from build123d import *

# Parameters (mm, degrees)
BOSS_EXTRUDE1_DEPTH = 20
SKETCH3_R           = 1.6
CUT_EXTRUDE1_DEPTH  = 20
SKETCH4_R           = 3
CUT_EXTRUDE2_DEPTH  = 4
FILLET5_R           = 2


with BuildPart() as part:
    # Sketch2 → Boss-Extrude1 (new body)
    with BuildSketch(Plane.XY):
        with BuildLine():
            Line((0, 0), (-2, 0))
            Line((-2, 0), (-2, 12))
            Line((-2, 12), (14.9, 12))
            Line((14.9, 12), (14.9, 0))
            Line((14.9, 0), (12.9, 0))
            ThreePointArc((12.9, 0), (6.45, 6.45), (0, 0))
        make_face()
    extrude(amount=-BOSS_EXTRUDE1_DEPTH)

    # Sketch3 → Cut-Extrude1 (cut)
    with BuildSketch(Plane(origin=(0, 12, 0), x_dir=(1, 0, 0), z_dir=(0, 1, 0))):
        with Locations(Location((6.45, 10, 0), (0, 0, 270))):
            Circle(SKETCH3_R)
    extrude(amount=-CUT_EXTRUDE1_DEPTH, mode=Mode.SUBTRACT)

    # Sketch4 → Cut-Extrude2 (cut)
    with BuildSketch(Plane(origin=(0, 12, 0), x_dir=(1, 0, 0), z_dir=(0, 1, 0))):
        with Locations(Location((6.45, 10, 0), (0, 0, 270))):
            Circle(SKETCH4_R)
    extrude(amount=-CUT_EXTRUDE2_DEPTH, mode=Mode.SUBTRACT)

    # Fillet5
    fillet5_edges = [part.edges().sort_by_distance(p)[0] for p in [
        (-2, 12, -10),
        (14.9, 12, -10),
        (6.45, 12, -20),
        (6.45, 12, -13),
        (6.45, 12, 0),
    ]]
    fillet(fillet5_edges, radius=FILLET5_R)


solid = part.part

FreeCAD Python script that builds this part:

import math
import FreeCAD as App
import Part
import Sketcher
from FreeCAD import Vector


def edges_at(feature, points):
    """Names of the edges that pass closest to the given points."""
    edges = feature.Shape.Edges
    near = lambda p: min(range(len(edges)), key=lambda i: edges[i].distToShape(Part.Vertex(*p))[0])
    return sorted({f"Edge{near(p) + 1}" for p in points})

doc = App.newDocument("Part")
params = doc.addObject("Spreadsheet::Sheet", "Params")
for row, (alias, value) in enumerate([
    ("sketch1_width", "2 mm"),
    ("sketch1_height", "12 mm"),
    ("sketch1_radius", "6.45 mm"),
    ("pad1_length", "20 mm"),
    ("sketch2_diameter", "3.2 mm"),
    ("pocket1_length", "20 mm"),
    ("sketch3_diameter", "6 mm"),
    ("pocket2_length", "4 mm"),
    ("fillet_radius", "2 mm"),
], start=1):
    params.set(f"A{row}", alias)
    params.set(f"B{row}", "=" + value)
    params.setAlias(f"B{row}", alias)

body = doc.addObject("PartDesign::Body", "Body")

# Sketch on XY plane
sketch1 = body.newObject("Sketcher::SketchObject", "Sketch")
sketch1.AttachmentSupport = (doc.getObject("XY_Plane"), [""])
sketch1.MapMode = "FlatFace"
sketch1.addGeometry([
    Part.LineSegment(Vector(-2, 0, 0), Vector(0, 0, 0)),  # 0
    Part.ArcOfCircle(Part.Circle(Vector(6.5, 0, 0), Vector(0, 0, 1), 6.5), math.radians(0), math.radians(180)),  # 1
    Part.LineSegment(Vector(12.9, 0, 0), Vector(14.9, 0, 0)),  # 2
    Part.LineSegment(Vector(14.9, 0, 0), Vector(14.9, 12, 0)),  # 3
    Part.LineSegment(Vector(14.9, 12, 0), Vector(-2, 12, 0)),  # 4
    Part.LineSegment(Vector(-2, 12, 0), Vector(-2, 0, 0)),  # 5
], False)
sketch1.addConstraint([
    Sketcher.Constraint("Coincident", 0, 2, 1, 2),
    Sketcher.Constraint("Coincident", 1, 1, 2, 1),
    Sketcher.Constraint("Coincident", 2, 2, 3, 1),
    Sketcher.Constraint("Coincident", 3, 2, 4, 1),
    Sketcher.Constraint("Coincident", 4, 2, 5, 1),
    Sketcher.Constraint("Coincident", 5, 2, 0, 1),
    Sketcher.Constraint("Horizontal", 0),
    Sketcher.Constraint("Horizontal", 2),
    Sketcher.Constraint("Vertical", 3),
    Sketcher.Constraint("Horizontal", 4),
    Sketcher.Constraint("Vertical", 5),
    Sketcher.Constraint("Coincident", 0, 2, -1, 1),
    Sketcher.Constraint("PointOnObject", 1, 3, -1),
    Sketcher.Constraint("PointOnObject", 1, 1, -1),
    Sketcher.Constraint("Equal", 0, 2),
    Sketcher.Constraint("DistanceX", 0, 1, 0, 2, 2.0),
    Sketcher.Constraint("DistanceY", 3, 1, 3, 2, 12.0),
    Sketcher.Constraint("Radius", 1, 6.45),
])
sketch1.setExpression("Constraints[15]", "Params.sketch1_width")
sketch1.setExpression("Constraints[16]", "Params.sketch1_height")
sketch1.setExpression("Constraints[17]", "Params.sketch1_radius")
pad1 = body.newObject("PartDesign::Pad", "Pad")
pad1.Profile = sketch1
pad1.setExpression("Length", "Params.pad1_length")
pad1.Reversed = True

# Sketch on XZ plane
sketch2 = body.newObject("Sketcher::SketchObject", "Sketch001")
sketch2.AttachmentSupport = (doc.getObject("XZ_Plane"), [""])
sketch2.MapMode = "FlatFace"
sketch2.AttachmentOffset = App.Placement(Vector(0, 0, -12), App.Rotation())
sketch2.addGeometry(Part.Circle(Vector(6.5, -10, 0), Vector(0, 0, 1), 1.6), False)
sketch2.addConstraint([
    Sketcher.Constraint("Diameter", 0, 3.2),
    Sketcher.Constraint("DistanceY", 0, 3, -1, 1, 10.0),
    Sketcher.Constraint("DistanceX", -1, 1, 0, 3, 6.45),
])
sketch2.setExpression("Constraints[0]", "Params.sketch2_diameter")
pocket1 = body.newObject("PartDesign::Pocket", "Pocket")
pocket1.Profile = sketch2
pocket1.setExpression("Length", "Params.pocket1_length")
pocket1.Reversed = True

# Sketch on XZ plane
sketch3 = body.newObject("Sketcher::SketchObject", "Sketch002")
sketch3.AttachmentSupport = (doc.getObject("XZ_Plane"), [""])
sketch3.MapMode = "FlatFace"
sketch3.AttachmentOffset = App.Placement(Vector(0, 0, -12), App.Rotation())
sketch3.addGeometry(Part.Circle(Vector(6.5, -10, 0), Vector(0, 0, 1), 3), False)
sketch3.addConstraint([
    Sketcher.Constraint("Diameter", 0, 6.0),
    Sketcher.Constraint("DistanceY", 0, 3, -1, 1, 10.0),
    Sketcher.Constraint("DistanceX", -1, 1, 0, 3, 6.45),
])
sketch3.setExpression("Constraints[0]", "Params.sketch3_diameter")
pocket2 = body.newObject("PartDesign::Pocket", "Pocket001")
pocket2.Profile = sketch3
pocket2.setExpression("Length", "Params.pocket2_length")
pocket2.Reversed = True
doc.recompute()

fillet = body.newObject("PartDesign::Fillet", "Fillet")
fillet.Base = (pocket2, edges_at(pocket2, [
    (-2, 12, -10),
    (14.9, 12, -10),
    (6.45, 12, -20),
    (6.45, 12, -13),
    (6.45, 12, 0),
]))
fillet.setExpression("Radius", "Params.fillet_radius")

doc.recompute()
